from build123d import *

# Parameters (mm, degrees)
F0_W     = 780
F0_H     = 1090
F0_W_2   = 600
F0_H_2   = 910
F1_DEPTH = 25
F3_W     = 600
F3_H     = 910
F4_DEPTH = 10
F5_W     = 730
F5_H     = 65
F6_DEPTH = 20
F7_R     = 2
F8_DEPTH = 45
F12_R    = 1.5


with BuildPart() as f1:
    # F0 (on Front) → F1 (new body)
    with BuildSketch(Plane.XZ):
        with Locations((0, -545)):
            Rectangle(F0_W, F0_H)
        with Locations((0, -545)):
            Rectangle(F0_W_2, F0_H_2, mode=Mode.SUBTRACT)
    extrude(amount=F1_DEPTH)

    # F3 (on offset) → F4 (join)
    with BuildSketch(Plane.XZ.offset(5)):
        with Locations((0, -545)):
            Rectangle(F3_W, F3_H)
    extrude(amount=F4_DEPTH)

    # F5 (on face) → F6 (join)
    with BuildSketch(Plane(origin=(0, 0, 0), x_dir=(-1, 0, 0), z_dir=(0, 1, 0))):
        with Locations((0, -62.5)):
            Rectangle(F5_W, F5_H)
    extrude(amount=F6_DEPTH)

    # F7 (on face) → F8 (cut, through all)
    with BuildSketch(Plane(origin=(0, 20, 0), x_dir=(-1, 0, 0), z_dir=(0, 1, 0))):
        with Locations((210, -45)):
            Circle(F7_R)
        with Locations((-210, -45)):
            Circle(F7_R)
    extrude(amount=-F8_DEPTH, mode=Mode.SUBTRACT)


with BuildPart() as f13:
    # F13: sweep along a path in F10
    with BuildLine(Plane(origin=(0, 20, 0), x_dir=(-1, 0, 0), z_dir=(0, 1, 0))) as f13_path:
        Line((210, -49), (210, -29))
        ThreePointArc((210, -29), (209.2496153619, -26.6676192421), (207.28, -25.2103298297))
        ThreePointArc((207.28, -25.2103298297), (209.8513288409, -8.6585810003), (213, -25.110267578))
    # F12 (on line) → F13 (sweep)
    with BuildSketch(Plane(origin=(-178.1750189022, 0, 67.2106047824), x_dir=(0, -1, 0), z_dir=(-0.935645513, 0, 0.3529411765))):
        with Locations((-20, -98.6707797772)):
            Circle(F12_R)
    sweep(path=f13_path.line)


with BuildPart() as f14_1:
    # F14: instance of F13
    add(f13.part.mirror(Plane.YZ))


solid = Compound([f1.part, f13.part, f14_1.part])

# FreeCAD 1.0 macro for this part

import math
import FreeCAD as App
import Part
import Sketcher

V = App.Vector
Q = App.Units.Quantity

doc = App.newDocument("Part")
body = doc.addObject("PartDesign::Body", "Body")

sketch1 = body.newObject("Sketcher::SketchObject", "Sketch")
sketch1.AttachmentSupport = (doc.getObject("XZ_Plane"), [""])
sketch1.MapMode = "FlatFace"
sketch1.addGeometry([
    Part.LineSegment(V(-390, 0, 0), V(-390, -1090, 0)),
    Part.LineSegment(V(-390, -1090, 0), V(390, -1090, 0)),
    Part.LineSegment(V(390, -1090, 0), V(390, 0, 0)),
    Part.LineSegment(V(390, 0, 0), V(-390, 0, 0)),
    Part.LineSegment(V(300, -1000, 0), V(-300, -1000, 0)),
    Part.LineSegment(V(-300, -1000, 0), V(-300, -90, 0)),
    Part.LineSegment(V(-300, -90, 0), V(300, -90, 0)),
    Part.LineSegment(V(300, -90, 0), V(300, -1000, 0)),
], False)
sketch1.addConstraint([
    Sketcher.Constraint("Coincident", 0, 2, 1, 1),
    Sketcher.Constraint("Coincident", 1, 2, 2, 1),
    Sketcher.Constraint("Coincident", 2, 2, 3, 1),
    Sketcher.Constraint("Coincident", 3, 2, 0, 1),
    Sketcher.Constraint("Coincident", 4, 2, 5, 1),
    Sketcher.Constraint("Coincident", 5, 2, 6, 1),
    Sketcher.Constraint("Coincident", 6, 2, 7, 1),
    Sketcher.Constraint("Coincident", 7, 2, 4, 1),
    Sketcher.Constraint("Vertical", 0),
    Sketcher.Constraint("Horizontal", 1),
    Sketcher.Constraint("Vertical", 2),
    Sketcher.Constraint("Horizontal", 3),
    Sketcher.Constraint("Horizontal", 4),
    Sketcher.Constraint("Vertical", 5),
    Sketcher.Constraint("Horizontal", 6),
    Sketcher.Constraint("Vertical", 7),
    Sketcher.Constraint("Symmetric", 2, 2, 3, 2, -1, 1),
    Sketcher.Constraint("DistanceX", 1, 1, 1, 2, Q("780 mm")),
    Sketcher.Constraint("DistanceX", 4, 2, 4, 1, Q("600 mm")),
    Sketcher.Constraint("DistanceY", 0, 2, 0, 1, Q("1090 mm")),
    Sketcher.Constraint("DistanceY", 5, 1, 5, 2, Q("910 mm")),
    Sketcher.Constraint("DistanceX", 4, 2, -1, 1, Q("300 mm")),
    Sketcher.Constraint("DistanceY", 4, 2, -1, 1, Q("1000 mm")),
])
pad1 = body.newObject("PartDesign::Pad", "Pad")
pad1.Profile = sketch1
pad1.Length = 25

sketch2 = body.newObject("Sketcher::SketchObject", "Sketch001")
sketch2.AttachmentSupport = (doc.getObject("XZ_Plane"), [""])
sketch2.MapMode = "FlatFace"
sketch2.AttachmentOffset = App.Placement(V(0, 0, 5), App.Rotation())
sketch2.addGeometry([
    Part.LineSegment(V(-300, -90, 0), V(-300, -1000, 0)),
    Part.LineSegment(V(-300, -1000, 0), V(300, -1000, 0)),
    Part.LineSegment(V(300, -1000, 0), V(300, -90, 0)),
    Part.LineSegment(V(300, -90, 0), V(-300, -90, 0)),
], False)
sketch2.addConstraint([
    Sketcher.Constraint("Coincident", 0, 2, 1, 1),
    Sketcher.Constraint("Coincident", 1, 2, 2, 1),
    Sketcher.Constraint("Coincident", 2, 2, 3, 1),
    Sketcher.Constraint("Coincident", 3, 2, 0, 1),
    Sketcher.Constraint("Vertical", 0),
    Sketcher.Constraint("Horizontal", 1),
    Sketcher.Constraint("Vertical", 2),
    Sketcher.Constraint("Horizontal", 3),
    Sketcher.Constraint("DistanceX", 1, 1, 1, 2, Q("600 mm")),
    Sketcher.Constraint("DistanceY", 0, 2, 0, 1, Q("910 mm")),
    Sketcher.Constraint("DistanceX", 0, 2, -1, 1, Q("300 mm")),
    Sketcher.Constraint("DistanceY", 0, 2, -1, 1, Q("1000 mm")),
])
pad2 = body.newObject("PartDesign::Pad", "Pad001")
pad2.Profile = sketch2
pad2.Length = 10

sketch3 = body.newObject("Sketcher::SketchObject", "Sketch002")
sketch3.AttachmentSupport = (doc.getObject("XZ_Plane"), [""])
sketch3.MapMode = "FlatFace"
sketch3.addGeometry([
    Part.LineSegment(V(365, -30, 0), V(365, -95, 0)),
    Part.LineSegment(V(365, -95, 0), V(-365, -95, 0)),
    Part.LineSegment(V(-365, -95, 0), V(-365, -30, 0)),
    Part.LineSegment(V(-365, -30, 0), V(365, -30, 0)),
], False)
sketch3.addConstraint([
    Sketcher.Constraint("Coincident", 0, 2, 1, 1),
    Sketcher.Constraint("Coincident", 1, 2, 2, 1),
    Sketcher.Constraint("Coincident", 2, 2, 3, 1),
    Sketcher.Constraint("Coincident", 3, 2, 0, 1),
    Sketcher.Constraint("Vertical", 0),
    Sketcher.Constraint("Horizontal", 1),
    Sketcher.Constraint("Vertical", 2),
    Sketcher.Constraint("Horizontal", 3),
    Sketcher.Constraint("DistanceX", 1, 2, 1, 1, Q("730 mm")),
    Sketcher.Constraint("DistanceY", 0, 2, 0, 1, Q("65 mm")),
    Sketcher.Constraint("DistanceX", -1, 1, 0, 2, Q("365 mm")),
    Sketcher.Constraint("DistanceY", 0, 2, -1, 1, Q("95 mm")),
])
pad3 = body.newObject("PartDesign::Pad", "Pad002")
pad3.Profile = sketch3
pad3.Length = 20
pad3.Reversed = True

sketch4 = body.newObject("Sketcher::SketchObject", "Sketch003")
sketch4.AttachmentSupport = (doc.getObject("XZ_Plane"), [""])
sketch4.MapMode = "FlatFace"
sketch4.AttachmentOffset = App.Placement(V(0, 0, -20), App.Rotation())
sketch4.addGeometry([
    Part.Circle(V(-210, -45, 0), V(0, 0, 1), 2),
    Part.Circle(V(210, -45, 0), V(0, 0, 1), 2),
], False)
sketch4.addConstraint([
    Sketcher.Constraint("Equal", 0, 1),
    Sketcher.Constraint("Symmetric", 0, 3, 1, 3, -2),
    Sketcher.Constraint("Diameter", 0, Q("4 mm")),
    Sketcher.Constraint("DistanceX", 0, 3, -1, 1, Q("210 mm")),
    Sketcher.Constraint("DistanceY", 0, 3, -1, 1, Q("45 mm")),
])
pocket1 = body.newObject("PartDesign::Pocket", "Pocket")
pocket1.Profile = sketch4
pocket1.Type = "ThroughAll"
pocket1.Reversed = True
body2 = doc.addObject("PartDesign::Body", "Body001")

sketch5 = body2.newObject("Sketcher::SketchObject", "Sketch004")
sketch5.Placement = App.Placement(V(-178.175019, 0, 67.210605), App.Rotation(V(0, -1, 0), V(0.352941176, 0, 0.935645513), V(-0.935645513, 0, 0.352941176), "ZXY"))
sketch5.addGeometry(Part.Circle(V(-20, -98.7, 0), V(0, 0, 1), 1.5), False)
sketch5.addConstraint([
    Sketcher.Constraint("Diameter", 0, Q("3 mm")),
    Sketcher.Constraint("DistanceX", 0, 3, -1, 1, Q("20 mm")),
    Sketcher.Constraint("DistanceY", 0, 3, -1, 1, Q("98.67078 mm")),
])

sketch6 = body2.newObject("Sketcher::SketchObject", "Sketch005")
sketch6.AttachmentSupport = (doc.getObject("XZ_Plane001"), [""])
sketch6.MapMode = "FlatFace"
sketch6.AttachmentOffset = App.Placement(V(0, 0, -20), App.Rotation())
sketch6.addGeometry([
    Part.LineSegment(V(-210, -49, 0), V(-210, -29, 0)),
    Part.ArcOfCircle(Part.Circle(V(-206, -29, 0), V(0, 0, 1), 4), math.radians(109), math.radians(180)),
    Part.ArcOfCircle(Part.Circle(V(-210, -17.2, 0), V(0, 0, 1), 8.5), math.radians(-71), math.radians(249)),
], False)
sketch6.addConstraint([
    Sketcher.Constraint("Tangent", 0, 2, 1, 2),
    Sketcher.Constraint("Tangent", 1, 1, 2, 1),
    Sketcher.Constraint("Vertical", 0),
    Sketcher.Constraint("Vertical", 2, 3, 0, 1),
    Sketcher.Constraint("Radius", 1, Q("4 mm")),
    Sketcher.Constraint("Radius", 2, Q("8.5 mm")),
    Sketcher.Constraint("DistanceY", 0, 1, 0, 2, Q("20 mm")),
    Sketcher.Constraint("DistanceX", 1, 3, -1, 1, Q("206 mm")),
    Sketcher.Constraint("DistanceY", 1, 3, -1, 1, Q("29 mm")),
    Sketcher.Constraint("DistanceX", 2, 2, -1, 1, Q("213 mm")),
])
doc.recompute()

additivepipe = body2.newObject("PartDesign::AdditivePipe", "AdditivePipe")
additivepipe.Profile = sketch5
additivepipe.Spine = (sketch6, ["Edge1", "Edge2", "Edge3"])
body3 = doc.addObject("PartDesign::Body", "Body002")
doc.recompute()

mirroring = doc.addObject("Part::Mirroring", "Mirroring")
mirroring.Source = body2
mirroring.Base = V(0, 0, 0)
mirroring.Normal = V(1, 0, 0)
body3.BaseFeature = mirroring
doc.recompute()
mirroring.Visibility = False

doc.recompute()
